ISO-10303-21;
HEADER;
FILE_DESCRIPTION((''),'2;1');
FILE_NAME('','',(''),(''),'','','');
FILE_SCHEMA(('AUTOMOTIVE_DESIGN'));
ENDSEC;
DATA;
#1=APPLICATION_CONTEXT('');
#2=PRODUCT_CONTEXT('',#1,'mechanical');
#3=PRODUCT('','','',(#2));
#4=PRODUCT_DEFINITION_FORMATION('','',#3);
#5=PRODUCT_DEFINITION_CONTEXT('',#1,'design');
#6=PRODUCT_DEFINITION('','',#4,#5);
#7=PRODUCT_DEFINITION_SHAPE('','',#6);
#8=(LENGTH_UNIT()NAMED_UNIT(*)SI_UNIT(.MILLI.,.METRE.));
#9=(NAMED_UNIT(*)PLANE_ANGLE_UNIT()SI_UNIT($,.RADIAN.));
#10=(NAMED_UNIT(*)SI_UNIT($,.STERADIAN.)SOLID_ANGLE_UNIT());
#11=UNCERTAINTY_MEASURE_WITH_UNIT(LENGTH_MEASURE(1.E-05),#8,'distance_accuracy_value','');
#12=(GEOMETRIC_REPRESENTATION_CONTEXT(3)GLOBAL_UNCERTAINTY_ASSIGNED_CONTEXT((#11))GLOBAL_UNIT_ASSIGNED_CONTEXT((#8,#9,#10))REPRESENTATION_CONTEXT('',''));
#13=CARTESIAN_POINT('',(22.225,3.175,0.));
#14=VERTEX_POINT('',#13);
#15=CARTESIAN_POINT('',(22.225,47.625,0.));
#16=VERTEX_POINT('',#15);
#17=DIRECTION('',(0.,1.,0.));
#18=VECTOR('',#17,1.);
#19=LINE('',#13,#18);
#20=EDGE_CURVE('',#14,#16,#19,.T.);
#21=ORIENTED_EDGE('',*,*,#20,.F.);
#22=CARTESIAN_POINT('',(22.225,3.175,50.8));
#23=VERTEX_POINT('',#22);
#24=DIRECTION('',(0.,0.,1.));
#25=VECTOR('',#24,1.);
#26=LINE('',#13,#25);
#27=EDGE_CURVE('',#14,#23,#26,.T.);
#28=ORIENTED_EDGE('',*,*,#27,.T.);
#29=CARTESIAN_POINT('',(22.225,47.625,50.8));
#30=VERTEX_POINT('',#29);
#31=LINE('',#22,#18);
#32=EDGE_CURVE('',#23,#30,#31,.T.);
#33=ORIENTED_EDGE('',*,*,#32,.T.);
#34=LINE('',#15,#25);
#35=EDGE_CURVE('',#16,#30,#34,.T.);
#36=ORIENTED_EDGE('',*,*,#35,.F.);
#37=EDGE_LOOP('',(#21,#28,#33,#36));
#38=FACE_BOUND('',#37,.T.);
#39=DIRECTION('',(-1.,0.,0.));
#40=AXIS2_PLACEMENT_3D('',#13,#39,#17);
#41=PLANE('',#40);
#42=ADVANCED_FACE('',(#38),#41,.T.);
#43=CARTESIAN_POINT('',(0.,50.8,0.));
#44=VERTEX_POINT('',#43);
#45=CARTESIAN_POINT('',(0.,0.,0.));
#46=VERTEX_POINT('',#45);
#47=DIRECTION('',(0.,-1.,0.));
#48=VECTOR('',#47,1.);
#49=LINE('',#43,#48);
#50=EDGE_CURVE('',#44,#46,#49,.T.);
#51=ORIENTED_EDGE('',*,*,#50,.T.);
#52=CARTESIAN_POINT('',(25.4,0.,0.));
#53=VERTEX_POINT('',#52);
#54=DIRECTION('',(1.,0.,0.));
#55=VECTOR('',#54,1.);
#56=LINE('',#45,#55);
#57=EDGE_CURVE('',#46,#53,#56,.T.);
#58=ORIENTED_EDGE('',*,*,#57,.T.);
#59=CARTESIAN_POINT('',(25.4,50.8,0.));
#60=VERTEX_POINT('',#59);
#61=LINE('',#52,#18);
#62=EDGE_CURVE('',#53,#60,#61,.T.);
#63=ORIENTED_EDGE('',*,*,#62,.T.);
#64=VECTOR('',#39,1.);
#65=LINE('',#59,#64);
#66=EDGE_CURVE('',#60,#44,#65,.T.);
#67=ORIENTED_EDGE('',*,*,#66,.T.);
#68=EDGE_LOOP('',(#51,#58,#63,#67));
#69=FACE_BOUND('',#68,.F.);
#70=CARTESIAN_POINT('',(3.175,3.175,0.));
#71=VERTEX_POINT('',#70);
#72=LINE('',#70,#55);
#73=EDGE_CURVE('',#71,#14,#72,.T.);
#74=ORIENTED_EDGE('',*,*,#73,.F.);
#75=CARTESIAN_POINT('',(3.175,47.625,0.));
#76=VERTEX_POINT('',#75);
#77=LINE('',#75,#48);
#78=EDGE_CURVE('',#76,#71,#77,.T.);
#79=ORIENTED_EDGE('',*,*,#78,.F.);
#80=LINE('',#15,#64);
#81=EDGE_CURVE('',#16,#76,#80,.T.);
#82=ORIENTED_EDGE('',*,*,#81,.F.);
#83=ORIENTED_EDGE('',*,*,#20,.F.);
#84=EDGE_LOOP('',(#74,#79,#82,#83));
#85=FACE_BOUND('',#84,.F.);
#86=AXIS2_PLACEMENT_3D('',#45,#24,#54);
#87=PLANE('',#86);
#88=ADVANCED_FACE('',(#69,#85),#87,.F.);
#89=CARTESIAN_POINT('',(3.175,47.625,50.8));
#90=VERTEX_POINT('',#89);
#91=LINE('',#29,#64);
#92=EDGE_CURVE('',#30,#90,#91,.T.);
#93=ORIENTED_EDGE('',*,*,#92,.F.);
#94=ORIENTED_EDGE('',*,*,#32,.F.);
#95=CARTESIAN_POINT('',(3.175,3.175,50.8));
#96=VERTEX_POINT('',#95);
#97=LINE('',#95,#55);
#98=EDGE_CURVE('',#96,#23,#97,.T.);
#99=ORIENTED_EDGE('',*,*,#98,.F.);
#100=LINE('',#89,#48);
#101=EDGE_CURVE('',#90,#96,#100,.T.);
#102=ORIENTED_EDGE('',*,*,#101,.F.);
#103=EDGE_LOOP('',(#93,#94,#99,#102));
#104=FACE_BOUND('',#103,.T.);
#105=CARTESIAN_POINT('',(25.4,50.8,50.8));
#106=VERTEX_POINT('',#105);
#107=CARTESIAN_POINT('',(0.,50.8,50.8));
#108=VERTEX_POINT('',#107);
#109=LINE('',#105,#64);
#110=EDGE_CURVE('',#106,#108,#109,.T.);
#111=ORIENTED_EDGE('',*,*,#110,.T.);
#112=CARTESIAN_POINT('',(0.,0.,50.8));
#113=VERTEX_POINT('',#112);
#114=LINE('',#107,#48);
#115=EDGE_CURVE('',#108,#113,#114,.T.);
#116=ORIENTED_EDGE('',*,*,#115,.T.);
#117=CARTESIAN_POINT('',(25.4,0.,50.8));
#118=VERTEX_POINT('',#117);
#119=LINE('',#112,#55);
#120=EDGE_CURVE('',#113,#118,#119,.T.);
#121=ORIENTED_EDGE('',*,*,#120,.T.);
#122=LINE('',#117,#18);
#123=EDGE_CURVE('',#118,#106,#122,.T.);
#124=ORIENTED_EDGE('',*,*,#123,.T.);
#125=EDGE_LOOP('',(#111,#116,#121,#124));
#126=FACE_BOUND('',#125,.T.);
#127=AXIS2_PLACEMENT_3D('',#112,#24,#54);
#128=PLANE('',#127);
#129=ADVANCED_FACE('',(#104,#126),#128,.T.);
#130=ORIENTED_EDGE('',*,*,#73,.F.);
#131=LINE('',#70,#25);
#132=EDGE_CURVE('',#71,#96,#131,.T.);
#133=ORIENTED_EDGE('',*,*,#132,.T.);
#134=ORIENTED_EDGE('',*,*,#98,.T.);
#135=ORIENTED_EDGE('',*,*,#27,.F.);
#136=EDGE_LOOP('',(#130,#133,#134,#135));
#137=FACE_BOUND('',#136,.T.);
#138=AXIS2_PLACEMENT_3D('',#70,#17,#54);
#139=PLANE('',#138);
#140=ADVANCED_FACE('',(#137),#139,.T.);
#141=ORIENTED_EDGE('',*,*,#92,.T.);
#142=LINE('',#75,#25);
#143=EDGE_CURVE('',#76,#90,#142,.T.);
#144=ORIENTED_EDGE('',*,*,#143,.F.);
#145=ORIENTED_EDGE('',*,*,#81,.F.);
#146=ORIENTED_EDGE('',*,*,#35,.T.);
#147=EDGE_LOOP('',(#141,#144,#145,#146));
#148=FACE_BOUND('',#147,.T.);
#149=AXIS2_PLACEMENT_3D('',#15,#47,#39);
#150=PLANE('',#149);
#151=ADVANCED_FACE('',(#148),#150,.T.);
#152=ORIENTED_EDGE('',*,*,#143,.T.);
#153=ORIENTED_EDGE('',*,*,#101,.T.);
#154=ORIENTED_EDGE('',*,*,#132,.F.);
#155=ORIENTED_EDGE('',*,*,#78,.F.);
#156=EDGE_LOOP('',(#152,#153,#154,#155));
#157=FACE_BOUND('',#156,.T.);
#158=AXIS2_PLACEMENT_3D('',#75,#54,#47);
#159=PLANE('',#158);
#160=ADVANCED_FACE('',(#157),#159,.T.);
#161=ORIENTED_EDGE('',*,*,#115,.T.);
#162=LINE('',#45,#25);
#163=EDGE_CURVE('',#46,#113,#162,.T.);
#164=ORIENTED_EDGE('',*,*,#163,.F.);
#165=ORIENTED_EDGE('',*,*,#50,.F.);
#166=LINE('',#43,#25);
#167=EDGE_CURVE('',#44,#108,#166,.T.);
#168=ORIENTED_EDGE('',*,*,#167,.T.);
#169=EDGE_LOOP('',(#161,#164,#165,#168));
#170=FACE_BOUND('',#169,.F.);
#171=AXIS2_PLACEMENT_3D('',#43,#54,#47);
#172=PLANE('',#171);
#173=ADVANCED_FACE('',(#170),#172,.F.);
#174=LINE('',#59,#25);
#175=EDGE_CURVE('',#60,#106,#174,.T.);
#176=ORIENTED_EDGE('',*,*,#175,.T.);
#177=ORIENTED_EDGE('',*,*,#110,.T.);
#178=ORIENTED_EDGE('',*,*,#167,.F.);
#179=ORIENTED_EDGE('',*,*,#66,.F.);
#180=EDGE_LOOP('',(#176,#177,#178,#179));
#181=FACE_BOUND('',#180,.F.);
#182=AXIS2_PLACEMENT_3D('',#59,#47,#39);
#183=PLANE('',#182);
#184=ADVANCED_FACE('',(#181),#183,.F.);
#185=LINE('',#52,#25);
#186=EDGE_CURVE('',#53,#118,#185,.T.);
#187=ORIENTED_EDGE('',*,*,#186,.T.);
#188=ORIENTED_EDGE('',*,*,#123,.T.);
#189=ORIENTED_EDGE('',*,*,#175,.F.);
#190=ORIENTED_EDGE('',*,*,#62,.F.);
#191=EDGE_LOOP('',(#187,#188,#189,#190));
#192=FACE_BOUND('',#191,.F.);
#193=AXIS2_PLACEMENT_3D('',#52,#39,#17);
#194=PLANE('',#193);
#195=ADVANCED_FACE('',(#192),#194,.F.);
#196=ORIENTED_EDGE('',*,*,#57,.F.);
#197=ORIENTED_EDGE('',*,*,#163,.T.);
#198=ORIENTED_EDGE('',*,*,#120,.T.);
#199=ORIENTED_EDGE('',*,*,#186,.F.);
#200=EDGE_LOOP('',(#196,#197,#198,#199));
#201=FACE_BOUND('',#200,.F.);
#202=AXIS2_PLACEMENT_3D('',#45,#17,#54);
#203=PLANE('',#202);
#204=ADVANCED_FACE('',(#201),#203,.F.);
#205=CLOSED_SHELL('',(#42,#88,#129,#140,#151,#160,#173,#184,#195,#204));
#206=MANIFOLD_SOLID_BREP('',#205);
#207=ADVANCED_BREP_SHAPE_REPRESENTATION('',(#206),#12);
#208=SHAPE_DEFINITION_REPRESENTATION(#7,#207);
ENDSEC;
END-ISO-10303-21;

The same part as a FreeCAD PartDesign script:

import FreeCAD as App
import Part
import Sketcher
Q = App.Units.Quantity


def add_polygon(sketch, points):
    """Adds a closed chain of lines whose ends are joined by coincident constraints."""
    first, n = sketch.GeometryCount, len(points)
    for a, b in zip(points, points[1:] + points[:1]):
        sketch.addGeometry(Part.LineSegment(App.Vector(*a, 0), App.Vector(*b, 0)), False)
    for i in range(n):
        sketch.addConstraint(Sketcher.Constraint("Coincident", first + i, 2, first + (i + 1) % n, 1))

doc = App.newDocument("Part")
body = doc.addObject("PartDesign::Body", "Body")

# Sketch on XY plane
sketch1 = doc.addObject("Sketcher::SketchObject", "Sketch")
body.addObject(sketch1)
sketch1.AttachmentSupport = (doc.XY_Plane, [""])
sketch1.MapMode = "FlatFace"
add_polygon(sketch1, [(0, 51), (0, 0), (25, 0), (25, 51)])  # lines 0-3
add_polygon(sketch1, [(22, 3), (3, 3), (3, 48), (22, 48)])  # lines 4-7
sketch1.addConstraint([
    Sketcher.Constraint("Vertical", 0),
    Sketcher.Constraint("Horizontal", 1),
    Sketcher.Constraint("Vertical", 2),
    Sketcher.Constraint("Horizontal", 3),
    Sketcher.Constraint("Horizontal", 4),
    Sketcher.Constraint("Vertical", 5),
    Sketcher.Constraint("Horizontal", 6),
    Sketcher.Constraint("Vertical", 7),
    Sketcher.Constraint("Coincident", 0, 2, -1, 1),
    Sketcher.Constraint("DistanceX", 1, 1, 1, 2, Q("1 in")),
    Sketcher.Constraint("DistanceY", 0, 2, 0, 1, Q("2 in")),
    Sketcher.Constraint("DistanceX", -1, 1, 4, 2, Q("0.125 in")),
    Sketcher.Constraint("DistanceY", -1, 1, 4, 2, Q("0.125 in")),
    Sketcher.Constraint("DistanceY", 5, 2, 3, 2, Q("0.125 in")),
    Sketcher.Constraint("DistanceX", 6, 2, 2, 2, Q("0.125 in")),
])
pad1 = doc.addObject("PartDesign::Pad", "Pad")
body.addObject(pad1)
pad1.Profile = sketch1
pad1.Length = Q("2 in")

doc.recompute()
